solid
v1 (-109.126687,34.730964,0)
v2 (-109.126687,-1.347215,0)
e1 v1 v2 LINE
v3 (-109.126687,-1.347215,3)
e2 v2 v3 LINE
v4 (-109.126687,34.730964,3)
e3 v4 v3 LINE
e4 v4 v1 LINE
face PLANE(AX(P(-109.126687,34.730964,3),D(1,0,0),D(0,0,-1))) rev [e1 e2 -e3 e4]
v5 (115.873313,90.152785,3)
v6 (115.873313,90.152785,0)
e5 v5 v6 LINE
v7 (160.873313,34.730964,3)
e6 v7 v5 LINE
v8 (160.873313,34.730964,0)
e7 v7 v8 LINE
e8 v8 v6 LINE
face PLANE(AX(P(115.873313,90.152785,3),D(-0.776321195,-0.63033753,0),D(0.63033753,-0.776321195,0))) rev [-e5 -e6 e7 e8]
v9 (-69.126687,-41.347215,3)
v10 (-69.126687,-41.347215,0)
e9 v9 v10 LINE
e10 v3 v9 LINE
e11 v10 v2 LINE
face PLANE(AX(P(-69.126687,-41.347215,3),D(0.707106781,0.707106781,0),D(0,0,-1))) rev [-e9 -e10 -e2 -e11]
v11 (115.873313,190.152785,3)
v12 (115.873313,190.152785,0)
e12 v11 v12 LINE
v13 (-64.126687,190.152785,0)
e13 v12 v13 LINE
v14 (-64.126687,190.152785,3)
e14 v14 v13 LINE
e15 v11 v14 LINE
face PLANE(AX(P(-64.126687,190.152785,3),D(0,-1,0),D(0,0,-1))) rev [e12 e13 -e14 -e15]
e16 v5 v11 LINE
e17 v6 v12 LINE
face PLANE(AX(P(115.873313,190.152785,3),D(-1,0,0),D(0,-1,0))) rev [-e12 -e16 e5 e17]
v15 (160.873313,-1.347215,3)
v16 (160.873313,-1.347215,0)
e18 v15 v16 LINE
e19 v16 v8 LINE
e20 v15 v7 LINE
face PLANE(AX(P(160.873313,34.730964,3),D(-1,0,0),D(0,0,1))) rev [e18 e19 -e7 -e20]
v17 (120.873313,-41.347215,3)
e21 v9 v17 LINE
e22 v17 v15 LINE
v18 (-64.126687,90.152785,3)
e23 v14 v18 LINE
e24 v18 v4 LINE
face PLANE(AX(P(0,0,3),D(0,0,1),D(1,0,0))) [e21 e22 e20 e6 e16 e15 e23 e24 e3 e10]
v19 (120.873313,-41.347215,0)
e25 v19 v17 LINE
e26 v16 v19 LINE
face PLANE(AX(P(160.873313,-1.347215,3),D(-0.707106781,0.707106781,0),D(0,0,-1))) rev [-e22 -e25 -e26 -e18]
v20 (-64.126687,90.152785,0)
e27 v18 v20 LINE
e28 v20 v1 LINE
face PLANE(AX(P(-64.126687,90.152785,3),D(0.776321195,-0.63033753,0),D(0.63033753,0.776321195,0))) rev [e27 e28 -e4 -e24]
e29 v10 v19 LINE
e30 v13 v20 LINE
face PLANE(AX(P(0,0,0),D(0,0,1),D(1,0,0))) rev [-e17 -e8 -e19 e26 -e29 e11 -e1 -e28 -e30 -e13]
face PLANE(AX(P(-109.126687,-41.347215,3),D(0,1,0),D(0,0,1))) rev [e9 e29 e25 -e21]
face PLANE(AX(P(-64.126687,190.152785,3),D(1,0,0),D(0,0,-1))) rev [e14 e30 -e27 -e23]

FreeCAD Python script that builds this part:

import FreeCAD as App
import Part
import Sketcher

V = App.Vector
Q = App.Units.Quantity


def edges_at(feature, points):
    """Names of the edges that pass closest to the given points."""
    edges = feature.Shape.Edges
    near = lambda p: min(range(len(edges)), key=lambda i: edges[i].distToShape(Part.Vertex(*p))[0])
    return sorted({f"Edge{near(p) + 1}" for p in points})


def add_polygon(sketch, points):
    """Adds a closed chain of lines whose ends are joined by coincident constraints."""
    first, n = sketch.GeometryCount, len(points)
    for a, b in zip(points, points[1:] + points[:1]):
        sketch.addGeometry(Part.LineSegment(App.Vector(*a, 0), App.Vector(*b, 0)), False)
    for i in range(n):
        sketch.addConstraint(Sketcher.Constraint("Coincident", first + i, 2, first + (i + 1) % n, 1))

doc = App.newDocument("Part")
body = doc.addObject("PartDesign::Body", "Body")

sketch1 = body.newObject("Sketcher::SketchObject", "Sketch")
sketch1.AttachmentSupport = (doc.getObject("XY_Plane"), [""])
sketch1.MapMode = "FlatFace"
add_polygon(sketch1, [(116, 90), (116, 190), (-64, 190), (-64, 90), (-109, 35), (-109, -41), (161, -41), (161, 35)])
sketch1.addConstraint(Sketcher.Constraint("Vertical", 0))
sketch1.addConstraint(Sketcher.Constraint("Horizontal", 1))
sketch1.addConstraint(Sketcher.Constraint("Vertical", 2))
sketch1.addConstraint(Sketcher.Constraint("Vertical", 4))
sketch1.addConstraint(Sketcher.Constraint("Horizontal", 5))
sketch1.addConstraint(Sketcher.Constraint("Vertical", 6))
sketch1.addConstraint(Sketcher.Constraint("Horizontal", 3, 2, 6, 2))
sketch1.addConstraint(Sketcher.Constraint("Horizontal", 2, 2, 7, 2))
sketch1.addConstraint(Sketcher.Constraint("Equal", 3, 7))
sketch1.addConstraint(Sketcher.Constraint("DistanceX", 1, 2, 1, 1, Q("180 mm")))
sketch1.addConstraint(Sketcher.Constraint("DistanceX", 5, 1, 5, 2, Q("270 mm")))
sketch1.addConstraint(Sketcher.Constraint("DistanceY", 0, 1, 0, 2, Q("100 mm")))
sketch1.addConstraint(Sketcher.Constraint("DistanceY", 4, 2, 2, 2, Q("131.5 mm")))
sketch1.addConstraint(Sketcher.Constraint("DistanceY", 4, 2, 4, 1, Q("76.078179 mm")))
sketch1.addConstraint(Sketcher.Constraint("DistanceX", -1, 1, 0, 2, Q("115.873313 mm")))
sketch1.addConstraint(Sketcher.Constraint("DistanceY", -1, 1, 0, 2, Q("190.152785 mm")))
pad1 = body.newObject("PartDesign::Pad", "Pad")
pad1.Profile = sketch1
pad1.Length = 3
doc.recompute()

chamfer = body.newObject("PartDesign::Chamfer", "Chamfer")
chamfer.Base = (pad1, edges_at(pad1, [(160.873, -41.347, 1.5), (-109.127, -41.347, 1.5)]))
chamfer.Size = 40

doc.recompute()
